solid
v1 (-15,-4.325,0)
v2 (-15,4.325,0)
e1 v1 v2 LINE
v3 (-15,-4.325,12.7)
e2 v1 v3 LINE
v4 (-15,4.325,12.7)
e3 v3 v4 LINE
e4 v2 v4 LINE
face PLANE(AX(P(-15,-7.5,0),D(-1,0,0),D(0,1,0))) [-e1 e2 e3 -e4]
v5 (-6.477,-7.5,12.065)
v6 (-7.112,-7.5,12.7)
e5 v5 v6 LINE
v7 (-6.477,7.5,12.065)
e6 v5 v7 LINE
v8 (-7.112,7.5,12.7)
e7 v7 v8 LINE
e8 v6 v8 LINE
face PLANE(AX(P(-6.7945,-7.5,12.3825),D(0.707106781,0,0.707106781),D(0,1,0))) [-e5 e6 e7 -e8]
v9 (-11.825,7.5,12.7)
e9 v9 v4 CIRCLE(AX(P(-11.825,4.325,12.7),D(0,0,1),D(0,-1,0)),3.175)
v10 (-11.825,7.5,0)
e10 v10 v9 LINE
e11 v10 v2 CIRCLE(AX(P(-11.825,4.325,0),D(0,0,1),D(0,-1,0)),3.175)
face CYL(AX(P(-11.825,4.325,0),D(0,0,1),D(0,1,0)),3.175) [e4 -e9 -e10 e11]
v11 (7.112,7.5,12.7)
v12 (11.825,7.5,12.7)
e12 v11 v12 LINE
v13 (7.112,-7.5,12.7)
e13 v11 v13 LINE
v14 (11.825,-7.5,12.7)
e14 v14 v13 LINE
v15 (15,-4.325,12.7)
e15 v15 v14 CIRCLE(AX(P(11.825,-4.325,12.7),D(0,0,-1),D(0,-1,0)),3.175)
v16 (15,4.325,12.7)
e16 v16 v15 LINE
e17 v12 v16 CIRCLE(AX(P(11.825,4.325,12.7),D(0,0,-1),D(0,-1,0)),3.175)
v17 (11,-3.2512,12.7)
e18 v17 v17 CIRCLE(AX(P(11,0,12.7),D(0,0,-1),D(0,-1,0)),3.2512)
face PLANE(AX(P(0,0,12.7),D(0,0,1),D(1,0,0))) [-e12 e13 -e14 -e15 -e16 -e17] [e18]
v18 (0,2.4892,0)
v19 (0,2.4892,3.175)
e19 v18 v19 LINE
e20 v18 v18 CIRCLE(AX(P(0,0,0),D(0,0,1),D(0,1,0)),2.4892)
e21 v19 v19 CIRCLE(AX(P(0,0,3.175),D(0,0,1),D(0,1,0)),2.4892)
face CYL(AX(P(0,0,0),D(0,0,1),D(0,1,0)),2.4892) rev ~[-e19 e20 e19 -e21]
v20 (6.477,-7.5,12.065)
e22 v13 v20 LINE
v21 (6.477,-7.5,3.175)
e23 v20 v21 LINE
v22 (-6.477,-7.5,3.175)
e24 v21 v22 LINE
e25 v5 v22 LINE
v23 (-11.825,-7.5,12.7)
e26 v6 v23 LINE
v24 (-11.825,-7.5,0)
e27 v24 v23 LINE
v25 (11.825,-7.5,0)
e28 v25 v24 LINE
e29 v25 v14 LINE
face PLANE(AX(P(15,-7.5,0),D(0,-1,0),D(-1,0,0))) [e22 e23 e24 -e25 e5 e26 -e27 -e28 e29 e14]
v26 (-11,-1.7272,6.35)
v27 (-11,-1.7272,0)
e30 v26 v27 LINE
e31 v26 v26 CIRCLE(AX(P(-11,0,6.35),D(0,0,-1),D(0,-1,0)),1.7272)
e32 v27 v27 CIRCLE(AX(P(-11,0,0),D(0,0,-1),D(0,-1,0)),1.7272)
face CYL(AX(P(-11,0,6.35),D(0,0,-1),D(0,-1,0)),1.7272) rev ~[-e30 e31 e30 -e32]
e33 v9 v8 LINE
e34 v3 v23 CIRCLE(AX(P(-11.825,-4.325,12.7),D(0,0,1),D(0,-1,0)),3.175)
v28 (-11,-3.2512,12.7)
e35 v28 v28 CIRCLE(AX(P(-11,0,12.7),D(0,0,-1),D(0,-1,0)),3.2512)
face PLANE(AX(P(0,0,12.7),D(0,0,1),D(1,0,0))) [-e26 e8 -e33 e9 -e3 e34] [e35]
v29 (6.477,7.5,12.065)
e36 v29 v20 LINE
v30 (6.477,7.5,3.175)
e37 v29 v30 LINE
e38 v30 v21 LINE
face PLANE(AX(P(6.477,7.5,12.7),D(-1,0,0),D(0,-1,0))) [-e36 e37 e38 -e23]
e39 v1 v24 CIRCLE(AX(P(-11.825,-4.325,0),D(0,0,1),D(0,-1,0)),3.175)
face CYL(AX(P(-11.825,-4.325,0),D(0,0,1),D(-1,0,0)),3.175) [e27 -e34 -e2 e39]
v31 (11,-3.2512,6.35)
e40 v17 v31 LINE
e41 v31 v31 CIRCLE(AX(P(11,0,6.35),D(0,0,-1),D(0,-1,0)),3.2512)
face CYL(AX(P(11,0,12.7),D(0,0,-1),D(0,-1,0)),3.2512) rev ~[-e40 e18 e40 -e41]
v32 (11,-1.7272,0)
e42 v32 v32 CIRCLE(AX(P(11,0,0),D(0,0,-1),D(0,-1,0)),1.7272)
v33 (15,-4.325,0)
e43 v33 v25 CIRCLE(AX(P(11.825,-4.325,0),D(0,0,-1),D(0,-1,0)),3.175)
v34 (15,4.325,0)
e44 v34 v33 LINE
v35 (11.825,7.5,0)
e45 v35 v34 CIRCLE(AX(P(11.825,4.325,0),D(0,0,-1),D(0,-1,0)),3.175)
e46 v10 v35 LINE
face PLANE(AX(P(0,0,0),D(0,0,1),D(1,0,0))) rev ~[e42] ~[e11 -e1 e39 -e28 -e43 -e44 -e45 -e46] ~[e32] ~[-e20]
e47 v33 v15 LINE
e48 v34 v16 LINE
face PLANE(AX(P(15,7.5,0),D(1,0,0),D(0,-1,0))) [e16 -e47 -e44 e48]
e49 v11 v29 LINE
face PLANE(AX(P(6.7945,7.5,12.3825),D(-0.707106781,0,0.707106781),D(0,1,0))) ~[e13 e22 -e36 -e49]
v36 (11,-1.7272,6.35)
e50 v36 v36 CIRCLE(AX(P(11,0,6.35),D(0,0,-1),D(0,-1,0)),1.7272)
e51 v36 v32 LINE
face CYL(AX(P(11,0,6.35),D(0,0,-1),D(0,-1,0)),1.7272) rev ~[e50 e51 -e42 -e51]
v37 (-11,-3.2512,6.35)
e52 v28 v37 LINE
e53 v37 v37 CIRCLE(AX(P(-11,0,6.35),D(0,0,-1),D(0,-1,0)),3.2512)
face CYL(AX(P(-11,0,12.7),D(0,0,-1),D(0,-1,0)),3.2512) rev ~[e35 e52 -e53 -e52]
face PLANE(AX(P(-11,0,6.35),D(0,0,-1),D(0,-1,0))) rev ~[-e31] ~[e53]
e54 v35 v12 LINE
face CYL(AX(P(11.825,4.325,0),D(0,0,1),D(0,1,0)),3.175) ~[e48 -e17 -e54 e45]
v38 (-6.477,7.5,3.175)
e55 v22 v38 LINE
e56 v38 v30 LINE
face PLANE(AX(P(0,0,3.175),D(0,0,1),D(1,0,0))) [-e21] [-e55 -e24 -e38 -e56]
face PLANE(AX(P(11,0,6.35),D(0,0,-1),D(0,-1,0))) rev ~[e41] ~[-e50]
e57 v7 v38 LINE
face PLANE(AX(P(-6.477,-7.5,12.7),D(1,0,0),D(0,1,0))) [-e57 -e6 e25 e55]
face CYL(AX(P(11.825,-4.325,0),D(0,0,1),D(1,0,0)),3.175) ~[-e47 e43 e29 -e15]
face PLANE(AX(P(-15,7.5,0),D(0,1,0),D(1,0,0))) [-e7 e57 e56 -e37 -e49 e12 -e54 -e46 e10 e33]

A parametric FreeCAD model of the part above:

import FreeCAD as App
import Part
import Sketcher
Q = App.Units.Quantity


def edges_at(feature, points):
    """Names of the edges that pass closest to the given points."""
    edges = feature.Shape.Edges
    near = lambda p: min(range(len(edges)), key=lambda i: edges[i].distToShape(Part.Vertex(*p))[0])
    return sorted({f"Edge{near(p) + 1}" for p in points})


def add_polygon(sketch, points):
    """Adds a closed chain of lines whose ends are joined by coincident constraints."""
    first, n = sketch.GeometryCount, len(points)
    for a, b in zip(points, points[1:] + points[:1]):
        sketch.addGeometry(Part.LineSegment(App.Vector(*a, 0), App.Vector(*b, 0)), False)
    for i in range(n):
        sketch.addConstraint(Sketcher.Constraint("Coincident", first + i, 2, first + (i + 1) % n, 1))

doc = App.newDocument("Part")
params = doc.addObject("Spreadsheet::Sheet", "Params")
for row, (alias, value) in enumerate([
    ("pad1_length", "0.5 in"),
    ("sketch2_width", "0.51 in"),
    ("pocket1_length", "0.375 in"),
    ("sketch3_diameter", "0.196 in"),
    ("hole_diameter", "0.196 in"),
    ("sketch4_diameter", "0.136 in"),
    ("hole2_diameter", "0.136 in"),
    ("hole2_cbore_diameter", "0.256 in"),
    ("hole2_cbore_depth", "0.25 in"),
    ("chamfer_size", "0.025 in"),
    ("fillet_radius", "0.125 in"),
], start=1):
    params.set(f"A{row}", alias)
    params.set(f"B{row}", "=" + value)
    params.setAlias(f"B{row}", alias)

body = doc.addObject("PartDesign::Body", "Body")

# Sketch on XY plane
sketch1 = body.newObject("Sketcher::SketchObject", "Sketch")
sketch1.AttachmentSupport = (doc.getObject("XY_Plane"), [""])
sketch1.MapMode = "FlatFace"
add_polygon(sketch1, [(15, 8), (-15, 8), (-15, -8), (15, -8)])  # lines 0-3
sketch1.addConstraint(Sketcher.Constraint("Horizontal", 0))
sketch1.addConstraint(Sketcher.Constraint("Vertical", 1))
sketch1.addConstraint(Sketcher.Constraint("Horizontal", 2))
sketch1.addConstraint(Sketcher.Constraint("Vertical", 3))
sketch1.addConstraint(Sketcher.Constraint("Symmetric", 0, 2, 2, 2, -1, 1))
sketch1.addConstraint(Sketcher.Constraint("DistanceX", 0, 2, 0, 1, Q("1.1811 in")))
sketch1.addConstraint(Sketcher.Constraint("DistanceY", 1, 2, 1, 1, Q("15 mm")))
pad1 = body.newObject("PartDesign::Pad", "Pad")
pad1.Profile = sketch1
pad1.setExpression("Length", "Params.pad1_length")

# Sketch on XY plane
sketch2 = body.newObject("Sketcher::SketchObject", "Sketch001")
sketch2.AttachmentSupport = (doc.getObject("XY_Plane"), [""])
sketch2.MapMode = "FlatFace"
sketch2.AttachmentOffset = App.Placement(App.Vector(0, 0, 0.5 * 25.4), App.Rotation())
add_polygon(sketch2, [(6, 8), (-6, 8), (-6, -8), (6, -8)])  # lines 0-3
sketch2.addConstraint(Sketcher.Constraint("Horizontal", 0))
sketch2.addConstraint(Sketcher.Constraint("Vertical", 1))
sketch2.addConstraint(Sketcher.Constraint("Horizontal", 2))
sketch2.addConstraint(Sketcher.Constraint("Vertical", 3))
sketch2.addConstraint(Sketcher.Constraint("Symmetric", 0, 2, 2, 2, -1, 1))
sketch2.addConstraint(Sketcher.Constraint("DistanceX", 0, 2, 0, 1, Q("0.51 in")))
sketch2.addConstraint(Sketcher.Constraint("DistanceY", 1, 2, 1, 1, Q("15 mm")))
sketch2.setExpression("Constraints[9]", "Params.sketch2_width")
pocket1 = body.newObject("PartDesign::Pocket", "Pocket")
pocket1.Profile = sketch2
pocket1.setExpression("Length", "Params.pocket1_length")

# Sketch on XY plane
sketch3 = body.newObject("Sketcher::SketchObject", "Sketch002")
sketch3.AttachmentSupport = (doc.getObject("XY_Plane"), [""])
sketch3.MapMode = "FlatFace"
sketch3.addGeometry(Part.Circle(App.Vector(0, 0, 0), App.Vector(0, 0, 1), 2.5), False)
sketch3.addConstraint(Sketcher.Constraint("Coincident", 0, 3, -1, 1))
sketch3.addConstraint(Sketcher.Constraint("Diameter", 0, Q("0.196 in")))
sketch3.setExpression("Constraints[1]", "Params.sketch3_diameter")
doc.recompute()
hole = body.newObject("PartDesign::Hole", "Hole")
hole.Profile = sketch3
hole.ThreadType = "None"
hole.setExpression("Diameter", "Params.hole_diameter")
hole.DepthType = "ThroughAll"
hole.Reversed = True

# Sketch on XY plane
sketch4 = body.newObject("Sketcher::SketchObject", "Sketch003")
sketch4.AttachmentSupport = (doc.getObject("XY_Plane"), [""])
sketch4.MapMode = "FlatFace"
sketch4.AttachmentOffset = App.Placement(App.Vector(0, 0, 0.5 * 25.4), App.Rotation())
sketch4.addGeometry(Part.Circle(App.Vector(-11, 0, 0), App.Vector(0, 0, 1), 1.7), False)
sketch4.addGeometry(Part.Circle(App.Vector(11, 0, 0), App.Vector(0, 0, 1), 1.7), False)
sketch4.addConstraint(Sketcher.Constraint("Equal", 0, 1))
sketch4.addConstraint(Sketcher.Constraint("Symmetric", 0, 3, 1, 3, -1, 1))
sketch4.addConstraint(Sketcher.Constraint("PointOnObject", 0, 3, -1))
sketch4.addConstraint(Sketcher.Constraint("Diameter", 0, Q("0.136 in")))
sketch4.addConstraint(Sketcher.Constraint("DistanceX", 0, 3, -1, 1, Q("11 mm")))
sketch4.setExpression("Constraints[3]", "Params.sketch4_diameter")
doc.recompute()
hole2 = body.newObject("PartDesign::Hole", "Hole001")
hole2.Profile = sketch4
hole2.ThreadType = "None"
hole2.setExpression("Diameter", "Params.hole2_diameter")
hole2.DepthType = "ThroughAll"
hole2.HoleCutType = "Counterbore"
hole2.setExpression("HoleCutDiameter", "Params.hole2_cbore_diameter")
hole2.setExpression("HoleCutDepth", "Params.hole2_cbore_depth")
doc.recompute()

chamfer = body.newObject("PartDesign::Chamfer", "Chamfer")
chamfer.Base = (hole2, edges_at(hole2, [(6.477, 0, 12.7), (-6.477, 0, 12.7)]))
chamfer.setExpression("Size", "Params.chamfer_size")
doc.recompute()

fillet = body.newObject("PartDesign::Fillet", "Fillet")
fillet.Base = (chamfer, edges_at(chamfer, [
    (15, 7.5, 6.35),
    (-15, 7.5, 6.35),
    (-15, -7.5, 6.35),
    (15, -7.5, 6.35),
]))
fillet.setExpression("Radius", "Params.fillet_radius")

doc.recompute()
